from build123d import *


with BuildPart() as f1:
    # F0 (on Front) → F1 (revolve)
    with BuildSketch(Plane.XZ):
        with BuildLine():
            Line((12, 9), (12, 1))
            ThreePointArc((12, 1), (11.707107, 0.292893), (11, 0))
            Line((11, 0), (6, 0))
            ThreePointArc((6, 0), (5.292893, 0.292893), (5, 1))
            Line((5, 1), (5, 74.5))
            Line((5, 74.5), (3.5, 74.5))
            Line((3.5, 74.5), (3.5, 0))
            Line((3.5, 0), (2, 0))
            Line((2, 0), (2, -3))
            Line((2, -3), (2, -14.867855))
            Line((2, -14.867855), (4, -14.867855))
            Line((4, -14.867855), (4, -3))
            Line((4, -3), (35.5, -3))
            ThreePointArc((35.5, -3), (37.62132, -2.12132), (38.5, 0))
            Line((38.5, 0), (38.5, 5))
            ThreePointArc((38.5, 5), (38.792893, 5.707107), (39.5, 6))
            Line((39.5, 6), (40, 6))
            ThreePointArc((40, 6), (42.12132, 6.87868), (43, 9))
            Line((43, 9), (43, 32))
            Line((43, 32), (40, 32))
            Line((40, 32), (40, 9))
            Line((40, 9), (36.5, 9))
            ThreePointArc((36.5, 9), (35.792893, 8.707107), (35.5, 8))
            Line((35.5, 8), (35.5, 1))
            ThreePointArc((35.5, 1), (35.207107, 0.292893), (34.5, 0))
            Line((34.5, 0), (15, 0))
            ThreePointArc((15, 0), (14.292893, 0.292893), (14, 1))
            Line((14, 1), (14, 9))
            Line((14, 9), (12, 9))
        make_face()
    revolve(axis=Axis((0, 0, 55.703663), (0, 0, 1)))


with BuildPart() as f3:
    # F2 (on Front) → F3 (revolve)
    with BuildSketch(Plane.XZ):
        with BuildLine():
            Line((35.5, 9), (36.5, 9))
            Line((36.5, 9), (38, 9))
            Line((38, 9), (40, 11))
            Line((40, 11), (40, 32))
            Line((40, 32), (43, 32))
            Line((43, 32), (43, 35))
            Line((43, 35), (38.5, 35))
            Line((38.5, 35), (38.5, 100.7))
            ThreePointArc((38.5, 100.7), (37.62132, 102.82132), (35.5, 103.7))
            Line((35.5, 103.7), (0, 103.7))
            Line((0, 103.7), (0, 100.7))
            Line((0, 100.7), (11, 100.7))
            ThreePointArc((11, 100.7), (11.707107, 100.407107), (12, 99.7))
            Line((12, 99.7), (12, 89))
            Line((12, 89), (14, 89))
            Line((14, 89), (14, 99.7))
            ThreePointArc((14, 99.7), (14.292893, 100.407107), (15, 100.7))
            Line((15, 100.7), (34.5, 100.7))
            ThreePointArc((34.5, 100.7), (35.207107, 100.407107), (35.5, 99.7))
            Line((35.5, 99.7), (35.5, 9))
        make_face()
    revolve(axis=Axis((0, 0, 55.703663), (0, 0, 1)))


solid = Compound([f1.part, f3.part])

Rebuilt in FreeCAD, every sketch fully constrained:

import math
import FreeCAD as App
import Part
import Sketcher

V = App.Vector
Q = App.Units.Quantity

doc = App.newDocument("Part")
body = doc.addObject("PartDesign::Body", "Body")

# Sketch on XZ plane
sketch1 = doc.addObject("Sketcher::SketchObject", "Sketch")
body.addObject(sketch1)
sketch1.AttachmentSupport = (doc.XZ_Plane, [""])
sketch1.MapMode = "FlatFace"
sketch1.addGeometry([
    Part.LineSegment(V(12, 9, 0), V(12, 1, 0)),  # 0
    Part.ArcOfCircle(Part.Circle(V(11, 1, 0), V(0, 0, 1), 1), math.radians(-90), math.radians(0)),  # 1
    Part.LineSegment(V(11, 0, 0), V(6, 0, 0)),  # 2
    Part.ArcOfCircle(Part.Circle(V(6, 1, 0), V(0, 0, 1), 1), math.radians(180), math.radians(270)),  # 3
    Part.LineSegment(V(5, 1, 0), V(5, 74.5, 0)),  # 4
    Part.LineSegment(V(5, 74.5, 0), V(3.5, 74.5, 0)),  # 5
    Part.LineSegment(V(3.5, 74.5, 0), V(3.5, 0, 0)),  # 6
    Part.LineSegment(V(3.5, 0, 0), V(2, 0, 0)),  # 7
    Part.LineSegment(V(2, 0, 0), V(2, -14.9, 0)),  # 8
    Part.LineSegment(V(2, -14.9, 0), V(4, -14.9, 0)),  # 9
    Part.LineSegment(V(4, -14.9, 0), V(4, -3, 0)),  # 10
    Part.LineSegment(V(4, -3, 0), V(35.5, -3, 0)),  # 11
    Part.ArcOfCircle(Part.Circle(V(35.5, 0, 0), V(0, 0, 1), 3), math.radians(-90), math.radians(0)),  # 12
    Part.LineSegment(V(38.5, 0, 0), V(38.5, 5, 0)),  # 13
    Part.ArcOfCircle(Part.Circle(V(39.5, 5, 0), V(0, 0, 1), 1), math.radians(90), math.radians(180)),  # 14
    Part.LineSegment(V(39.5, 6, 0), V(40, 6, 0)),  # 15
    Part.ArcOfCircle(Part.Circle(V(40, 9, 0), V(0, 0, 1), 3), math.radians(-90), math.radians(0)),  # 16
    Part.LineSegment(V(43, 9, 0), V(43, 32, 0)),  # 17
    Part.LineSegment(V(43, 32, 0), V(40, 32, 0)),  # 18
    Part.LineSegment(V(40, 32, 0), V(40, 9, 0)),  # 19
    Part.LineSegment(V(40, 9, 0), V(36.5, 9, 0)),  # 20
    Part.ArcOfCircle(Part.Circle(V(36.5, 8, 0), V(0, 0, 1), 1), math.radians(90), math.radians(180)),  # 21
    Part.LineSegment(V(35.5, 8, 0), V(35.5, 1, 0)),  # 22
    Part.ArcOfCircle(Part.Circle(V(34.5, 1, 0), V(0, 0, 1), 1), math.radians(-90), math.radians(0)),  # 23
    Part.LineSegment(V(34.5, 0, 0), V(15, 0, 0)),  # 24
    Part.ArcOfCircle(Part.Circle(V(15, 1, 0), V(0, 0, 1), 1), math.radians(180), math.radians(270)),  # 25
    Part.LineSegment(V(14, 1, 0), V(14, 9, 0)),  # 26
    Part.LineSegment(V(14, 9, 0), V(12, 9, 0)),  # 27
], False)
sketch1.addConstraint([
    Sketcher.Constraint("Tangent", 0, 2, 1, 2),
    Sketcher.Constraint("Tangent", 1, 1, 2, 1),
    Sketcher.Constraint("Tangent", 2, 2, 3, 2),
    Sketcher.Constraint("Tangent", 3, 1, 4, 1),
    Sketcher.Constraint("Coincident", 4, 2, 5, 1),
    Sketcher.Constraint("Coincident", 5, 2, 6, 1),
    Sketcher.Constraint("Coincident", 6, 2, 7, 1),
    Sketcher.Constraint("Coincident", 7, 2, 8, 1),
    Sketcher.Constraint("Coincident", 8, 2, 9, 1),
    Sketcher.Constraint("Coincident", 9, 2, 10, 1),
    Sketcher.Constraint("Coincident", 10, 2, 11, 1),
    Sketcher.Constraint("Tangent", 11, 2, 12, 1),
    Sketcher.Constraint("Tangent", 12, 2, 13, 1),
    Sketcher.Constraint("Tangent", 13, 2, 14, 2),
    Sketcher.Constraint("Tangent", 14, 1, 15, 1),
    Sketcher.Constraint("Tangent", 15, 2, 16, 1),
    Sketcher.Constraint("Tangent", 16, 2, 17, 1),
    Sketcher.Constraint("Coincident", 17, 2, 18, 1),
    Sketcher.Constraint("Coincident", 18, 2, 19, 1),
    Sketcher.Constraint("Coincident", 19, 2, 20, 1),
    Sketcher.Constraint("Tangent", 20, 2, 21, 1),
    Sketcher.Constraint("Tangent", 21, 2, 22, 1),
    Sketcher.Constraint("Tangent", 22, 2, 23, 2),
    Sketcher.Constraint("Tangent", 23, 1, 24, 1),
    Sketcher.Constraint("Tangent", 24, 2, 25, 2),
    Sketcher.Constraint("Tangent", 25, 1, 26, 1),
    Sketcher.Constraint("Coincident", 26, 2, 27, 1),
    Sketcher.Constraint("Coincident", 27, 2, 0, 1),
    Sketcher.Constraint("Vertical", 0),
    Sketcher.Constraint("Horizontal", 2),
    Sketcher.Constraint("Vertical", 4),
    Sketcher.Constraint("Horizontal", 5),
    Sketcher.Constraint("Vertical", 6),
    Sketcher.Constraint("Horizontal", 7),
    Sketcher.Constraint("Vertical", 8),
    Sketcher.Constraint("Horizontal", 9),
    Sketcher.Constraint("Vertical", 10),
    Sketcher.Constraint("Horizontal", 11),
    Sketcher.Constraint("Vertical", 13),
    Sketcher.Constraint("Horizontal", 15),
    Sketcher.Constraint("Vertical", 17),
    Sketcher.Constraint("Horizontal", 18),
    Sketcher.Constraint("Vertical", 19),
    Sketcher.Constraint("Horizontal", 20),
    Sketcher.Constraint("Vertical", 22),
    Sketcher.Constraint("Horizontal", 24),
    Sketcher.Constraint("Vertical", 26),
    Sketcher.Constraint("Horizontal", 27),
    Sketcher.Constraint("Coincident", 19, 2, 16, 3),
    Sketcher.Constraint("Equal", 1, 3),
    Sketcher.Constraint("Equal", 3, 14),
    Sketcher.Constraint("Equal", 12, 16),
    Sketcher.Constraint("Equal", 14, 21),
    Sketcher.Constraint("Equal", 21, 23),
    Sketcher.Constraint("Equal", 23, 25),
    Sketcher.Constraint("PointOnObject", 12, 3, -1),
    Sketcher.Constraint("PointOnObject", 1, 1, -1),
    Sketcher.Constraint("PointOnObject", 6, 2, -1),
    Sketcher.Constraint("PointOnObject", 23, 1, -1),
    Sketcher.Constraint("Horizontal", 20, 2, 26, 2),
    Sketcher.Constraint("Vertical", 11, 2, 21, 2),
    Sketcher.Constraint("Equal", 5, 7),
    Sketcher.Constraint("Equal", 9, 27),
    Sketcher.Constraint("Equal", 2, 13),
    Sketcher.Constraint("Radius", 1, 0.999999),
    Sketcher.Constraint("Radius", 12, 3.000001),
    Sketcher.Constraint("DistanceX", 2, 2, 2, 1, 5.0),
    Sketcher.Constraint("DistanceX", 9, 1, 9, 2, 2.0),
    Sketcher.Constraint("DistanceY", 17, 1, 17, 2, 23.0),
    Sketcher.Constraint("DistanceX", 5, 2, 5, 1, 1.5),
    Sketcher.Constraint("DistanceX", 11, 1, 11, 2, 31.5),
    Sketcher.Constraint("DistanceX", 15, 1, 15, 2, 0.5),
    Sketcher.Constraint("DistanceY", 4, 1, 4, 2, 73.5),
    Sketcher.Constraint("DistanceX", -1, 1, 1, 3, 11.000001),
    Sketcher.Constraint("DistanceY", 8, 2, 8, 1, 14.867855),
])
revolution = doc.addObject("PartDesign::Revolution", "Revolution")
body.addObject(revolution)
revolution.Profile = sketch1
revolution.ReferenceAxis = (sketch1, ["V_Axis"])
revolution.Angle = 360
body2 = doc.addObject("PartDesign::Body", "Body001")

# Sketch on XZ plane
sketch2 = doc.addObject("Sketcher::SketchObject", "Sketch001")
body2.addObject(sketch2)
sketch2.AttachmentSupport = (doc.getObject("XZ_Plane001"), [""])
sketch2.MapMode = "FlatFace"
sketch2.addGeometry([
    Part.LineSegment(V(35.5, 9, 0), V(38, 9, 0)),  # 0
    Part.LineSegment(V(38, 9, 0), V(40, 11, 0)),  # 1
    Part.LineSegment(V(40, 11, 0), V(40, 32, 0)),  # 2
    Part.LineSegment(V(40, 32, 0), V(43, 32, 0)),  # 3
    Part.LineSegment(V(43, 32, 0), V(43, 35, 0)),  # 4
    Part.LineSegment(V(43, 35, 0), V(38.5, 35, 0)),  # 5
    Part.LineSegment(V(38.5, 35, 0), V(38.5, 100.7, 0)),  # 6
    Part.ArcOfCircle(Part.Circle(V(35.5, 100.7, 0), V(0, 0, 1), 3), math.radians(0), math.radians(90)),  # 7
    Part.LineSegment(V(35.5, 103.7, 0), V(0, 103.7, 0)),  # 8
    Part.LineSegment(V(0, 103.7, 0), V(0, 100.7, 0)),  # 9
    Part.LineSegment(V(0, 100.7, 0), V(11, 100.7, 0)),  # 10
    Part.ArcOfCircle(Part.Circle(V(11, 99.7, 0), V(0, 0, 1), 1), math.radians(0), math.radians(90)),  # 11
    Part.LineSegment(V(12, 99.7, 0), V(12, 89, 0)),  # 12
    Part.LineSegment(V(12, 89, 0), V(14, 89, 0)),  # 13
    Part.LineSegment(V(14, 89, 0), V(14, 99.7, 0)),  # 14
    Part.ArcOfCircle(Part.Circle(V(15, 99.7, 0), V(0, 0, 1), 1), math.radians(90), math.radians(180)),  # 15
    Part.LineSegment(V(15, 100.7, 0), V(34.5, 100.7, 0)),  # 16
    Part.ArcOfCircle(Part.Circle(V(34.5, 99.7, 0), V(0, 0, 1), 1), math.radians(0), math.radians(90)),  # 17
    Part.LineSegment(V(35.5, 99.7, 0), V(35.5, 9, 0)),  # 18
], False)
sketch2.addConstraint([
    Sketcher.Constraint("Coincident", 0, 2, 1, 1),
    Sketcher.Constraint("Coincident", 1, 2, 2, 1),
    Sketcher.Constraint("Coincident", 2, 2, 3, 1),
    Sketcher.Constraint("Coincident", 3, 2, 4, 1),
    Sketcher.Constraint("Coincident", 4, 2, 5, 1),
    Sketcher.Constraint("Coincident", 5, 2, 6, 1),
    Sketcher.Constraint("Tangent", 6, 2, 7, 1),
    Sketcher.Constraint("Tangent", 7, 2, 8, 1),
    Sketcher.Constraint("Coincident", 8, 2, 9, 1),
    Sketcher.Constraint("Coincident", 9, 2, 10, 1),
    Sketcher.Constraint("Tangent", 10, 2, 11, 2),
    Sketcher.Constraint("Tangent", 11, 1, 12, 1),
    Sketcher.Constraint("Coincident", 12, 2, 13, 1),
    Sketcher.Constraint("Coincident", 13, 2, 14, 1),
    Sketcher.Constraint("Tangent", 14, 2, 15, 2),
    Sketcher.Constraint("Tangent", 15, 1, 16, 1),
    Sketcher.Constraint("Tangent", 16, 2, 17, 2),
    Sketcher.Constraint("Tangent", 17, 1, 18, 1),
    Sketcher.Constraint("Coincident", 18, 2, 0, 1),
    Sketcher.Constraint("Horizontal", 0),
    Sketcher.Constraint("Vertical", 2),
    Sketcher.Constraint("Horizontal", 3),
    Sketcher.Constraint("Vertical", 4),
    Sketcher.Constraint("Horizontal", 5),
    Sketcher.Constraint("Vertical", 6),
    Sketcher.Constraint("Horizontal", 8),
    Sketcher.Constraint("Vertical", 9),
    Sketcher.Constraint("Horizontal", 10),
    Sketcher.Constraint("Vertical", 12),
    Sketcher.Constraint("Horizontal", 13),
    Sketcher.Constraint("Vertical", 14),
    Sketcher.Constraint("Horizontal", 16),
    Sketcher.Constraint("Vertical", 18),
    Sketcher.Constraint("Equal", 11, 15),
    Sketcher.Constraint("Equal", 15, 17),
    Sketcher.Constraint("PointOnObject", 8, 2, -2),
    Sketcher.Constraint("Horizontal", 11, 3, 15, 3),
    Sketcher.Constraint("Horizontal", 6, 2, 9, 2),
    Sketcher.Constraint("Vertical", 7, 2, 17, 1),
    Sketcher.Constraint("Equal", 3, 4),
    Sketcher.Constraint("Equal", 4, 9),
    Sketcher.Constraint("Radius", 7, 3.000001),
    Sketcher.Constraint("Radius", 11, 0.999999),
    Sketcher.Constraint("DistanceX", 10, 1, 10, 2, 11.0),
    Sketcher.Constraint("DistanceX", 13, 1, 13, 2, 2.0),
    Sketcher.Constraint("DistanceY", 2, 1, 2, 2, 21.0),
    Sketcher.Constraint("Angle", 1, Q("45 deg")),
    Sketcher.Constraint("DistanceX", 0, 1, 0, 2, 2.5),
    Sketcher.Constraint("DistanceX", 5, 2, 5, 1, 4.5),
    Sketcher.Constraint("DistanceX", 8, 2, 8, 1, 35.5),
    Sketcher.Constraint("DistanceY", 6, 1, 6, 2, 65.7),
    Sketcher.Constraint("DistanceY", 12, 2, 12, 1, 10.7),
    Sketcher.Constraint("DistanceY", -1, 1, 0, 2, 9.0),
])
revolution2 = doc.addObject("PartDesign::Revolution", "Revolution001")
body2.addObject(revolution2)
revolution2.Profile = sketch2
revolution2.ReferenceAxis = (sketch2, ["V_Axis"])
revolution2.Angle = 360

doc.recompute()
